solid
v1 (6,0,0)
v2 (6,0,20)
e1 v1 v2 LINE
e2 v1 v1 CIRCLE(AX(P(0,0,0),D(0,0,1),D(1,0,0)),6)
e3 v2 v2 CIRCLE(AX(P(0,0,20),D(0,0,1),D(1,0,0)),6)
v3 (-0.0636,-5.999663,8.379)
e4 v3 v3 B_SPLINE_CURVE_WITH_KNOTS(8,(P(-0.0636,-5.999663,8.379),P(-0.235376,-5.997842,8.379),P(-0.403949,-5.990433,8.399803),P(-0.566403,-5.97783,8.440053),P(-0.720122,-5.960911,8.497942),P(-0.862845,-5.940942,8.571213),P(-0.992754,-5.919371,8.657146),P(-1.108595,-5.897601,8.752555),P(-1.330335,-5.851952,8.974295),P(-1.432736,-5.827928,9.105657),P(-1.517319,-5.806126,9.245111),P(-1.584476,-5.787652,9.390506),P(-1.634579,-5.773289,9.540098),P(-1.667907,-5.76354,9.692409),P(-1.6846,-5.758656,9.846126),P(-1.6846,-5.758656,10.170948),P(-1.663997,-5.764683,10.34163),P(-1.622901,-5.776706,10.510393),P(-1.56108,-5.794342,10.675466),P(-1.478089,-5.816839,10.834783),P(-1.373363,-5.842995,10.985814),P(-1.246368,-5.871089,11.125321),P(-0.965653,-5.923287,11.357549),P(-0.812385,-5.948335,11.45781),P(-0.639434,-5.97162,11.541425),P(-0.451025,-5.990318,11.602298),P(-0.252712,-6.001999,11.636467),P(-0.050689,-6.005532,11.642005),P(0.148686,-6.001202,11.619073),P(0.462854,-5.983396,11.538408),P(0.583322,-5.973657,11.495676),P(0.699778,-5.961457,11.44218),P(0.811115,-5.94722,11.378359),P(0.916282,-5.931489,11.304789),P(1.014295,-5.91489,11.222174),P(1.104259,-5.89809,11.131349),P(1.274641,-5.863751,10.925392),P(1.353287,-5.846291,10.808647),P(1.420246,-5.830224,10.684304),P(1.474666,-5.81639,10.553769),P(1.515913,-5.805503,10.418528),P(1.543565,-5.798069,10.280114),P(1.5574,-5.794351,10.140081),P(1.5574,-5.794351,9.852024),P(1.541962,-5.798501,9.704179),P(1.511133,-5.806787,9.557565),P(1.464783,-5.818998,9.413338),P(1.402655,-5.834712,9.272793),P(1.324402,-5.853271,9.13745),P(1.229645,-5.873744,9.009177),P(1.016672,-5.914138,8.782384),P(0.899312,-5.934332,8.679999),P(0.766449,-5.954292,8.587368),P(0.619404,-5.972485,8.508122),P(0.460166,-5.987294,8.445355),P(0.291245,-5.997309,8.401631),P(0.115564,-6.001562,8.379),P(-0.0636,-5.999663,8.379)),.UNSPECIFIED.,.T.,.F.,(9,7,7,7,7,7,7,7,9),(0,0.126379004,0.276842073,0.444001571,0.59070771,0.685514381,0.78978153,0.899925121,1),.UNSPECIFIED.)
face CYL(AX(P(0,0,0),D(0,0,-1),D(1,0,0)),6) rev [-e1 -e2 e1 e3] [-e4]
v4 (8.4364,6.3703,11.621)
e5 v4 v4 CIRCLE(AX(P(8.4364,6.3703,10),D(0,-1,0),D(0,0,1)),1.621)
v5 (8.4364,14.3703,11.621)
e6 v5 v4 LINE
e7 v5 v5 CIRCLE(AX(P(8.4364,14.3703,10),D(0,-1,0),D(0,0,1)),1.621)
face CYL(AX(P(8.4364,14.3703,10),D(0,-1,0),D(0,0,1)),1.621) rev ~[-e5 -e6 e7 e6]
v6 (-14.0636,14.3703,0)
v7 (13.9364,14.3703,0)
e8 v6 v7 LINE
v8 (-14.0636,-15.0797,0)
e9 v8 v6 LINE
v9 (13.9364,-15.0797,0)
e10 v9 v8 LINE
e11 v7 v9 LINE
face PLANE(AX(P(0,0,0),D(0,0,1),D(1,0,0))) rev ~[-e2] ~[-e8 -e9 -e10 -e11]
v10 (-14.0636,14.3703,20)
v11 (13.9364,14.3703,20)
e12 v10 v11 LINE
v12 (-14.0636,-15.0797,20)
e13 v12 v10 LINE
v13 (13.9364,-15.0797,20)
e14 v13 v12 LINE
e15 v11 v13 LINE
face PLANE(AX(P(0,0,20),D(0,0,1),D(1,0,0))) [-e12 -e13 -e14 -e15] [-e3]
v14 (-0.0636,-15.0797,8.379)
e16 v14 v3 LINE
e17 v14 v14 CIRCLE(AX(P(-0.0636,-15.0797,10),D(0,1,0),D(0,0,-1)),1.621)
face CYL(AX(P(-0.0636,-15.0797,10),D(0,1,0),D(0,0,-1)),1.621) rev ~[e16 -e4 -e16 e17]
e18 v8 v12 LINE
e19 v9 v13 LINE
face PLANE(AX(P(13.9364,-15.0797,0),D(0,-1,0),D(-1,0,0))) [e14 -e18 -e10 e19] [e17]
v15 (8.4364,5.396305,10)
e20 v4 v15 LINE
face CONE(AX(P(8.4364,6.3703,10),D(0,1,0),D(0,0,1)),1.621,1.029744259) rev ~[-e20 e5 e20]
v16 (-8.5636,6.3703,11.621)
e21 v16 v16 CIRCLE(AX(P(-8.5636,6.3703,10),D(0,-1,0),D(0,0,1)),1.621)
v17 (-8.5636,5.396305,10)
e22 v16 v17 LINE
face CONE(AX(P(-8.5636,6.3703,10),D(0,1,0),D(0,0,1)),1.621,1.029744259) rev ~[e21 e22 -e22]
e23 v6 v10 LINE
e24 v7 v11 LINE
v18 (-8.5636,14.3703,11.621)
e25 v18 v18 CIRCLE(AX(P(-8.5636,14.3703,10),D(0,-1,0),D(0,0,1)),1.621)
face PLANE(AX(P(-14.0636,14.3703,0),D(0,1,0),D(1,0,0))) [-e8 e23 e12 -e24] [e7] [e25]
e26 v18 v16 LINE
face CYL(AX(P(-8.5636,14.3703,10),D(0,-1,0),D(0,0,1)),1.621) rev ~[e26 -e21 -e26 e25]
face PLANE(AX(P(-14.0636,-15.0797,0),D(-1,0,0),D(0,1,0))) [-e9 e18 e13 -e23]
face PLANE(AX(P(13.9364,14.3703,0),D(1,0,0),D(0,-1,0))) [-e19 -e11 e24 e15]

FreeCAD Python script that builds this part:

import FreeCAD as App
import Part
import Sketcher

V = App.Vector


def add_polygon(sketch, points):
    """Adds a closed chain of lines whose ends are joined by coincident constraints."""
    first, n = sketch.GeometryCount, len(points)
    for a, b in zip(points, points[1:] + points[:1]):
        sketch.addGeometry(Part.LineSegment(App.Vector(*a, 0), App.Vector(*b, 0)), False)
    for i in range(n):
        sketch.addConstraint(Sketcher.Constraint("Coincident", first + i, 2, first + (i + 1) % n, 1))

doc = App.newDocument("Part")
body = doc.addObject("PartDesign::Body", "Body")

sketch1 = body.newObject("Sketcher::SketchObject", "Sketch")
sketch1.AttachmentSupport = (doc.getObject("XY_Plane"), [""])
sketch1.MapMode = "FlatFace"
add_polygon(sketch1, [(13.9364, 14.3703), (-14.0636, 14.3703), (-14.0636, -15.0797), (13.9364, -15.0797)])
sketch1.addGeometry(Part.Circle(V(0, 0, 0), V(0, 0, 1), 6), False)
sketch1.addConstraint(Sketcher.Constraint("Horizontal", 0))
sketch1.addConstraint(Sketcher.Constraint("Vertical", 1))
sketch1.addConstraint(Sketcher.Constraint("Horizontal", 2))
sketch1.addConstraint(Sketcher.Constraint("Vertical", 3))
sketch1.addConstraint(Sketcher.Constraint("Coincident", 4, 3, -1, 1))
sketch1.addConstraint(Sketcher.Constraint("Diameter", 4, 12.0))
sketch1.addConstraint(Sketcher.Constraint("DistanceX", 0, 2, 0, 1, 28.0))
sketch1.addConstraint(Sketcher.Constraint("DistanceY", 1, 2, 1, 1, 29.45))
sketch1.addConstraint(Sketcher.Constraint("DistanceX", 0, 2, -1, 1, 14.0636))
sketch1.addConstraint(Sketcher.Constraint("DistanceY", -1, 1, 0, 2, 14.3703))
pad1 = body.newObject("PartDesign::Pad", "Pad")
pad1.Profile = sketch1
pad1.Length = 20

sketch2 = body.newObject("Sketcher::SketchObject", "Sketch001")
sketch2.AttachmentSupport = (doc.getObject("XZ_Plane"), [""])
sketch2.MapMode = "FlatFace"
sketch2.AttachmentOffset = App.Placement(V(0, 0, -14.3703), App.Rotation())
sketch2.addGeometry(Part.Circle(V(8.4364, 10, 0), V(0, 0, 1), 1.621), False)
sketch2.addGeometry(Part.Circle(V(-8.5636, 10, 0), V(0, 0, 1), 1.621), False)
sketch2.addConstraint(Sketcher.Constraint("Equal", 0, 1))
sketch2.addConstraint(Sketcher.Constraint("Horizontal", 0, 3, 1, 3))
sketch2.addConstraint(Sketcher.Constraint("Diameter", 0, 3.242))
sketch2.addConstraint(Sketcher.Constraint("DistanceY", -1, 1, 0, 3, 10.0))
sketch2.addConstraint(Sketcher.Constraint("DistanceX", 1, 3, 0, 3, 17.0))
sketch2.addConstraint(Sketcher.Constraint("DistanceX", -1, 1, 0, 3, 8.4364))
doc.recompute()
hole = body.newObject("PartDesign::Hole", "Hole")
hole.Profile = sketch2
hole.ThreadType = "None"
hole.Diameter = 3.242
hole.DepthType = "Dimension"
hole.Depth = 8
hole.DrillPoint = "Angled"
hole.DrillPointAngle = 118
hole.Reversed = True

sketch3 = body.newObject("Sketcher::SketchObject", "Sketch002")
sketch3.AttachmentSupport = (doc.getObject("XZ_Plane"), [""])
sketch3.MapMode = "FlatFace"
sketch3.AttachmentOffset = App.Placement(V(0, 0, 15.0797), App.Rotation())
sketch3.addGeometry(Part.Circle(V(-0.0636, 10, 0), V(0, 0, 1), 1.621), False)
sketch3.addConstraint(Sketcher.Constraint("Diameter", 0, 3.242))
sketch3.addConstraint(Sketcher.Constraint("DistanceY", -1, 1, 0, 3, 10.0))
sketch3.addConstraint(Sketcher.Constraint("DistanceX", 0, 3, -1, 1, 0.0636))
doc.recompute()
hole2 = body.newObject("PartDesign::Hole", "Hole001")
hole2.Profile = sketch3
hole2.ThreadType = "None"
hole2.Diameter = 3.242
hole2.DepthType = "Dimension"
hole2.Depth = 10
hole2.DrillPoint = "Angled"
hole2.DrillPointAngle = 118

doc.recompute()
